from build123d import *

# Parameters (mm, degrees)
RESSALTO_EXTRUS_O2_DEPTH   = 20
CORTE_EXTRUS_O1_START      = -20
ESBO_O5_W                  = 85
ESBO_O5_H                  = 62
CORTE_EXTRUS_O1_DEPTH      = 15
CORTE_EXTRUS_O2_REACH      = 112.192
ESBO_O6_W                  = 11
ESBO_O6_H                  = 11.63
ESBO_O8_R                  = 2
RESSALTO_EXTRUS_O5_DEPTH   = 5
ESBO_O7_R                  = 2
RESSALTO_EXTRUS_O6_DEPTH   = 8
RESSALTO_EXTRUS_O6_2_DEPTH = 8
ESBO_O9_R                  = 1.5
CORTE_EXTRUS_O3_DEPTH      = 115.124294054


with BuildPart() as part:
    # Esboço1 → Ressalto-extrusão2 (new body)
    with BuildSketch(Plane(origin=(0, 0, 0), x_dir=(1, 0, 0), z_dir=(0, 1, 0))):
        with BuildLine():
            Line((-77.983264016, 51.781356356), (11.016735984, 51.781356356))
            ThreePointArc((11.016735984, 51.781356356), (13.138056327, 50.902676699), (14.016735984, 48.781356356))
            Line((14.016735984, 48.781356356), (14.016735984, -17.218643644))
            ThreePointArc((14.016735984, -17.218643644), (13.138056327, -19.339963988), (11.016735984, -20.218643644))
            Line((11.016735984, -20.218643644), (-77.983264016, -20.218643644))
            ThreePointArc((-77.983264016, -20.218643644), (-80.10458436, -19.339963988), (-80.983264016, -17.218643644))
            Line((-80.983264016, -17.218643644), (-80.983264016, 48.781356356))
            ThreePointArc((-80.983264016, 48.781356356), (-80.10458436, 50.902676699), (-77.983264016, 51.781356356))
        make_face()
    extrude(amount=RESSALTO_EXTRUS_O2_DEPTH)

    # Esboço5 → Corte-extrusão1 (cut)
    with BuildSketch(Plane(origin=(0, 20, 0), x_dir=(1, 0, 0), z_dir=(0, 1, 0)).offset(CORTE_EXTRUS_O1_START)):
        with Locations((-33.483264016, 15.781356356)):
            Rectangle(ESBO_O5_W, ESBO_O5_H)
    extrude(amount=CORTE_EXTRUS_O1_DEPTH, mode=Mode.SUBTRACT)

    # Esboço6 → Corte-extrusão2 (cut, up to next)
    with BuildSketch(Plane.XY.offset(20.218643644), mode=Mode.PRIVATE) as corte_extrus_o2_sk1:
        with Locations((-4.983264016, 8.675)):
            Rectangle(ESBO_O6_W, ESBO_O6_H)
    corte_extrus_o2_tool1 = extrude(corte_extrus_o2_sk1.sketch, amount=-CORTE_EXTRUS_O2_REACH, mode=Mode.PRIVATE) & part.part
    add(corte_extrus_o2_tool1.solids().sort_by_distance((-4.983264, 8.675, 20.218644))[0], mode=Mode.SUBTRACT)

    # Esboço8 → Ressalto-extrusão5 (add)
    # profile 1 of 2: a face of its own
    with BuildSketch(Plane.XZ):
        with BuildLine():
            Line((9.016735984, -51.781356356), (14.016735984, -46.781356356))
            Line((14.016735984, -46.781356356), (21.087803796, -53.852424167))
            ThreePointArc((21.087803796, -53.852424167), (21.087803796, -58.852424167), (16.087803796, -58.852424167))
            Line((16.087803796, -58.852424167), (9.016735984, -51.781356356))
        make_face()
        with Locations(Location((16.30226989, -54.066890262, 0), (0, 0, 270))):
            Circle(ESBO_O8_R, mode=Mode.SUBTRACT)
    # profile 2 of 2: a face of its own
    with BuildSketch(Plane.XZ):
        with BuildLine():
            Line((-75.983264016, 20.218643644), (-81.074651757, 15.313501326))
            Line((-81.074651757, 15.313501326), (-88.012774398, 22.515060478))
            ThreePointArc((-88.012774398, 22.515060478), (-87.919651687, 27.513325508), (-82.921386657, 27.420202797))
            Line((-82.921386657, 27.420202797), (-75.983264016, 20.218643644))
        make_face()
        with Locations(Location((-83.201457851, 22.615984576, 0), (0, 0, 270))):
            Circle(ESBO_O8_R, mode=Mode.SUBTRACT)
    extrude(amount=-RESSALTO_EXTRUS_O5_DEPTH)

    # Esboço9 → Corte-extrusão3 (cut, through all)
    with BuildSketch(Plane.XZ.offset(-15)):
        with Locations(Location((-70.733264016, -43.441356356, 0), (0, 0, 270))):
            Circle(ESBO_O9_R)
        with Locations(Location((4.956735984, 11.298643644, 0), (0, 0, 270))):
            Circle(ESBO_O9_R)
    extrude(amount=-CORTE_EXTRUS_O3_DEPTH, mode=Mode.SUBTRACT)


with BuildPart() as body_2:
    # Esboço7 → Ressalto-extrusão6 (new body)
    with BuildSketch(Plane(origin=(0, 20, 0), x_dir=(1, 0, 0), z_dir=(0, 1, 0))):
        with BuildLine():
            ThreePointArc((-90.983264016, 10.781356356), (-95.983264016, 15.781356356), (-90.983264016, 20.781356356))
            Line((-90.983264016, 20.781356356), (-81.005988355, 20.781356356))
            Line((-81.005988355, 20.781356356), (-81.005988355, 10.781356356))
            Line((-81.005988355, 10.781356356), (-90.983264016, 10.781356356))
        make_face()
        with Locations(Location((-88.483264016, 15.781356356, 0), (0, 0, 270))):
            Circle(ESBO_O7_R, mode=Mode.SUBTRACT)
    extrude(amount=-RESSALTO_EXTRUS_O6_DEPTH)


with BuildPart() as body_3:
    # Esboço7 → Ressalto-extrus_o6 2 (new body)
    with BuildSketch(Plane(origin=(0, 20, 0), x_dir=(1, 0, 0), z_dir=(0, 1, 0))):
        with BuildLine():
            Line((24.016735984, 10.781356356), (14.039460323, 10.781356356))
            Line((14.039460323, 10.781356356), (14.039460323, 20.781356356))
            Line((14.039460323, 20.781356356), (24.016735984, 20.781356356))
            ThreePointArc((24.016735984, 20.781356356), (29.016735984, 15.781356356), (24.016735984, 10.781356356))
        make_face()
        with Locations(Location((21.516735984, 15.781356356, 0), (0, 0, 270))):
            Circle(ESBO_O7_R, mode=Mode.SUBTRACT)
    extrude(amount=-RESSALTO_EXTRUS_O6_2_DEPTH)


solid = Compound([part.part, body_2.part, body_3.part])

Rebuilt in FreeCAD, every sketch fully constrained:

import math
import FreeCAD as App
import Part
import Sketcher
from FreeCAD import Vector
Q = App.Units.Quantity


def add_polygon(sketch, points):
    """Adds a closed chain of lines whose ends are joined by coincident constraints."""
    first, n = sketch.GeometryCount, len(points)
    for a, b in zip(points, points[1:] + points[:1]):
        sketch.addGeometry(Part.LineSegment(App.Vector(*a, 0), App.Vector(*b, 0)), False)
    for i in range(n):
        sketch.addConstraint(Sketcher.Constraint("Coincident", first + i, 2, first + (i + 1) % n, 1))

doc = App.newDocument("Part")
body = doc.addObject("PartDesign::Body", "Body")

# Sketch on XZ plane
sketch1 = body.newObject("Sketcher::SketchObject", "Sketch")
sketch1.AttachmentSupport = (doc.getObject("XZ_Plane"), [""])
sketch1.MapMode = "FlatFace"
sketch1.addGeometry(Part.LineSegment(Vector(11, -51.8, 0), Vector(-78, -51.8, 0)), False)
sketch1.addGeometry(Part.ArcOfCircle(Part.Circle(Vector(-78, -48.8, 0), Vector(0, 0, 1), 3), math.radians(180), math.radians(270)), False)
sketch1.addGeometry(Part.LineSegment(Vector(-81, -48.8, 0), Vector(-81, 17.2, 0)), False)
sketch1.addGeometry(Part.ArcOfCircle(Part.Circle(Vector(-78, 17.2, 0), Vector(0, 0, 1), 3), math.radians(90), math.radians(180)), False)
sketch1.addGeometry(Part.LineSegment(Vector(-78, 20.2, 0), Vector(11, 20.2, 0)), False)
sketch1.addGeometry(Part.ArcOfCircle(Part.Circle(Vector(11, 17.2, 0), Vector(0, 0, 1), 3), math.radians(0), math.radians(90)), False)
sketch1.addGeometry(Part.LineSegment(Vector(14, 17.2, 0), Vector(14, -48.8, 0)), False)
sketch1.addGeometry(Part.ArcOfCircle(Part.Circle(Vector(11, -48.8, 0), Vector(0, 0, 1), 3), math.radians(-90), math.radians(0)), False)
sketch1.addConstraint(Sketcher.Constraint("Tangent", 0, 2, 1, 2))
sketch1.addConstraint(Sketcher.Constraint("Tangent", 1, 1, 2, 1))
sketch1.addConstraint(Sketcher.Constraint("Tangent", 2, 2, 3, 2))
sketch1.addConstraint(Sketcher.Constraint("Tangent", 3, 1, 4, 1))
sketch1.addConstraint(Sketcher.Constraint("Tangent", 4, 2, 5, 2))
sketch1.addConstraint(Sketcher.Constraint("Tangent", 5, 1, 6, 1))
sketch1.addConstraint(Sketcher.Constraint("Tangent", 6, 2, 7, 2))
sketch1.addConstraint(Sketcher.Constraint("Tangent", 7, 1, 0, 1))
sketch1.addConstraint(Sketcher.Constraint("Horizontal", 0))
sketch1.addConstraint(Sketcher.Constraint("Vertical", 2))
sketch1.addConstraint(Sketcher.Constraint("Horizontal", 4))
sketch1.addConstraint(Sketcher.Constraint("Vertical", 6))
sketch1.addConstraint(Sketcher.Constraint("Equal", 1, 3))
sketch1.addConstraint(Sketcher.Constraint("Equal", 3, 5))
sketch1.addConstraint(Sketcher.Constraint("Equal", 5, 7))
sketch1.addConstraint(Sketcher.Constraint("Radius", 1, 3.0))
sketch1.addConstraint(Sketcher.Constraint("DistanceX", 0, 2, 0, 1, 89.0))
sketch1.addConstraint(Sketcher.Constraint("DistanceY", 2, 1, 2, 2, 66.0))
sketch1.addConstraint(Sketcher.Constraint("DistanceX", 1, 3, -1, 1, 77.983264))
sketch1.addConstraint(Sketcher.Constraint("DistanceY", 1, 3, -1, 1, 48.781356))
pad1 = body.newObject("PartDesign::Pad", "Pad")
pad1.Profile = sketch1
pad1.Length = 20
pad1.Reversed = True

# Sketch on XZ plane
sketch2 = body.newObject("Sketcher::SketchObject", "Sketch001")
sketch2.AttachmentSupport = (doc.getObject("XZ_Plane"), [""])
sketch2.MapMode = "FlatFace"
add_polygon(sketch2, [(-76, -47), (-76, 15), (9, 15), (9, -47)])  # lines 0-3
sketch2.addConstraint(Sketcher.Constraint("Vertical", 0))
sketch2.addConstraint(Sketcher.Constraint("Horizontal", 1))
sketch2.addConstraint(Sketcher.Constraint("Vertical", 2))
sketch2.addConstraint(Sketcher.Constraint("Horizontal", 3))
sketch2.addConstraint(Sketcher.Constraint("DistanceX", 1, 1, 1, 2, 85.0))
sketch2.addConstraint(Sketcher.Constraint("DistanceY", 0, 1, 0, 2, 62.0))
sketch2.addConstraint(Sketcher.Constraint("DistanceX", 0, 2, -1, 1, 75.983264))
sketch2.addConstraint(Sketcher.Constraint("DistanceY", -1, 1, 0, 2, 15.218644))
pocket1 = body.newObject("PartDesign::Pocket", "Pocket")
pocket1.Profile = sketch2
pocket1.Length = 15

# Sketch on XY plane
sketch3 = body.newObject("Sketcher::SketchObject", "Sketch002")
sketch3.AttachmentSupport = (doc.getObject("XY_Plane"), [""])
sketch3.MapMode = "FlatFace"
sketch3.AttachmentOffset = App.Placement(Vector(0, 0, 20.218644), App.Rotation())
add_polygon(sketch3, [(-10, 14), (-10, 3), (1, 3), (1, 14)])  # lines 0-3
sketch3.addConstraint(Sketcher.Constraint("Vertical", 0))
sketch3.addConstraint(Sketcher.Constraint("Horizontal", 1))
sketch3.addConstraint(Sketcher.Constraint("Vertical", 2))
sketch3.addConstraint(Sketcher.Constraint("Horizontal", 3))
sketch3.addConstraint(Sketcher.Constraint("DistanceX", 1, 1, 1, 2, 11.0))
sketch3.addConstraint(Sketcher.Constraint("DistanceY", 0, 2, 0, 1, 11.63))
sketch3.addConstraint(Sketcher.Constraint("DistanceY", -1, 1, 0, 2, 2.86))
sketch3.addConstraint(Sketcher.Constraint("DistanceX", 0, 2, -1, 1, 10.483264))
pocket2 = body.newObject("PartDesign::Pocket", "Pocket001")
pocket2.Profile = sketch3
pocket2.Type = "UpToFirst"

# Sketch on XZ plane
sketch4 = body.newObject("Sketcher::SketchObject", "Sketch003")
sketch4.AttachmentSupport = (doc.getObject("XZ_Plane"), [""])
sketch4.MapMode = "FlatFace"
sketch4.addGeometry(Part.LineSegment(Vector(14, -46.8, 0), Vector(9, -51.8, 0)), False)
sketch4.addGeometry(Part.LineSegment(Vector(9, -51.8, 0), Vector(16.1, -58.9, 0)), False)
sketch4.addGeometry(Part.ArcOfCircle(Part.Circle(Vector(18.6, -56.4, 0), Vector(0, 0, 1), 3.5), math.radians(-135), math.radians(45)), False)
sketch4.addGeometry(Part.LineSegment(Vector(21.1, -53.9, 0), Vector(14, -46.8, 0)), False)
sketch4.addGeometry(Part.Circle(Vector(16.3, -54.1, 0), Vector(0, 0, 1), 2), False)
sketch4.addGeometry(Part.LineSegment(Vector(-81.1, 15.3, 0), Vector(-76, 20.2, 0)), False)
sketch4.addGeometry(Part.LineSegment(Vector(-76, 20.2, 0), Vector(-82.9, 27.4, 0)), False)
sketch4.addGeometry(Part.ArcOfCircle(Part.Circle(Vector(-85.5, 25, 0), Vector(0, 0, 1), 3.5), math.radians(44), math.radians(224)), False)
sketch4.addGeometry(Part.LineSegment(Vector(-88, 22.5, 0), Vector(-81.1, 15.3, 0)), False)
sketch4.addGeometry(Part.Circle(Vector(-83.2, 22.6, 0), Vector(0, 0, 1), 2), False)
sketch4.addConstraint(Sketcher.Constraint("Coincident", 0, 2, 1, 1))
sketch4.addConstraint(Sketcher.Constraint("Tangent", 1, 2, 2, 1))
sketch4.addConstraint(Sketcher.Constraint("Tangent", 2, 2, 3, 1))
sketch4.addConstraint(Sketcher.Constraint("Coincident", 3, 2, 0, 1))
sketch4.addConstraint(Sketcher.Constraint("Coincident", 5, 2, 6, 1))
sketch4.addConstraint(Sketcher.Constraint("Tangent", 6, 2, 7, 1))
sketch4.addConstraint(Sketcher.Constraint("Tangent", 7, 2, 8, 1))
sketch4.addConstraint(Sketcher.Constraint("Coincident", 8, 2, 5, 1))
sketch4.addConstraint(Sketcher.Constraint("Equal", 4, 9))
sketch4.addConstraint(Sketcher.Constraint("Perpendicular", 0, 1))
sketch4.addConstraint(Sketcher.Constraint("Parallel", 1, 3))
sketch4.addConstraint(Sketcher.Constraint("Perpendicular", 5, 6))
sketch4.addConstraint(Sketcher.Constraint("Parallel", 6, 8))
sketch4.addConstraint(Sketcher.Constraint("Equal", 3, 6))
sketch4.addConstraint(Sketcher.Constraint("Diameter", 4, 4.0))
sketch4.addConstraint(Sketcher.Constraint("Angle", 0, Q("-135 deg")))
sketch4.addConstraint(Sketcher.Constraint("Distance", 1, 10.0))
sketch4.addConstraint(Sketcher.Constraint("DistanceX", 1, 2, 2, 2, 5.0))
sketch4.addConstraint(Sketcher.Constraint("DistanceX", 5, 2, 0, 2, 85.0))
sketch4.addConstraint(Sketcher.Constraint("DistanceY", 0, 2, 5, 2, 72.0))
sketch4.addConstraint(Sketcher.Constraint("Radius", 7, 3.53492))
sketch4.addConstraint(Sketcher.Constraint("DistanceY", -1, 1, 8, 2, 15.313501))
sketch4.addConstraint(Sketcher.Constraint("DistanceY", 8, 2, 6, 2, 12.106701))
sketch4.addConstraint(Sketcher.Constraint("DistanceX", -1, 1, 4, 3, 16.30227))
sketch4.addConstraint(Sketcher.Constraint("DistanceY", 4, 3, -1, 1, 54.06689))
sketch4.addConstraint(Sketcher.Constraint("DistanceX", 7, 3, -1, 1, 85.467081))
sketch4.addConstraint(Sketcher.Constraint("DistanceX", 9, 3, 2, 3, 101.789262))
sketch4.addConstraint(Sketcher.Constraint("DistanceY", 2, 3, 9, 3, 78.968409))
pad2 = body.newObject("PartDesign::Pad", "Pad001")
pad2.Profile = sketch4
pad2.Length = 5
pad2.Reversed = True

# Sketch on XZ plane
sketch5 = body.newObject("Sketcher::SketchObject", "Sketch004")
sketch5.AttachmentSupport = (doc.getObject("XZ_Plane"), [""])
sketch5.MapMode = "FlatFace"
sketch5.AttachmentOffset = App.Placement(Vector(0, 0, -15), App.Rotation())
sketch5.addGeometry(Part.Circle(Vector(-70.7, -43.4, 0), Vector(0, 0, 1), 1.5), False)
sketch5.addGeometry(Part.Circle(Vector(5, 11.3, 0), Vector(0, 0, 1), 1.5), False)
sketch5.addConstraint(Sketcher.Constraint("Equal", 0, 1))
sketch5.addConstraint(Sketcher.Constraint("Diameter", 0, 3.0))
sketch5.addConstraint(Sketcher.Constraint("DistanceX", 0, 3, 1, 3, 75.69))
sketch5.addConstraint(Sketcher.Constraint("DistanceY", 0, 3, 1, 3, 54.74))
sketch5.addConstraint(Sketcher.Constraint("DistanceX", 0, 3, -1, 1, 70.733264))
sketch5.addConstraint(Sketcher.Constraint("DistanceY", 0, 3, -1, 1, 43.441356))
pocket3 = body.newObject("PartDesign::Pocket", "Pocket002")
pocket3.Profile = sketch5
pocket3.Type = "ThroughAll"
body2 = doc.addObject("PartDesign::Body", "Body001")

# Sketch on XZ plane
sketch6 = body2.newObject("Sketcher::SketchObject", "Sketch005")
sketch6.AttachmentSupport = (doc.getObject("XZ_Plane001"), [""])
sketch6.MapMode = "FlatFace"
sketch6.AttachmentOffset = App.Placement(Vector(0, 0, -20), App.Rotation())
sketch6.addGeometry(Part.ArcOfCircle(Part.Circle(Vector(-91, -15.8, 0), Vector(0, 0, 1), 5), math.radians(90), math.radians(270)), False)
sketch6.addGeometry(Part.LineSegment(Vector(-91, -10.8, 0), Vector(-81, -10.8, 0)), False)
sketch6.addGeometry(Part.LineSegment(Vector(-81, -10.8, 0), Vector(-81, -20.8, 0)), False)
sketch6.addGeometry(Part.LineSegment(Vector(-81, -20.8, 0), Vector(-91, -20.8, 0)), False)
sketch6.addGeometry(Part.Circle(Vector(-88.5, -15.8, 0), Vector(0, 0, 1), 2), False)
sketch6.addConstraint(Sketcher.Constraint("Tangent", 0, 1, 1, 1))
sketch6.addConstraint(Sketcher.Constraint("Coincident", 1, 2, 2, 1))
sketch6.addConstraint(Sketcher.Constraint("Coincident", 2, 2, 3, 1))
sketch6.addConstraint(Sketcher.Constraint("Tangent", 3, 2, 0, 2))
sketch6.addConstraint(Sketcher.Constraint("Horizontal", 1))
sketch6.addConstraint(Sketcher.Constraint("Vertical", 2))
sketch6.addConstraint(Sketcher.Constraint("Horizontal", 3))
sketch6.addConstraint(Sketcher.Constraint("Horizontal", 0, 3, 4, 3))
sketch6.addConstraint(Sketcher.Constraint("Diameter", 4, 4.0))
sketch6.addConstraint(Sketcher.Constraint("Radius", 0, 5.0))
sketch6.addConstraint(Sketcher.Constraint("DistanceX", 0, 3, 4, 3, 2.5))
sketch6.addConstraint(Sketcher.Constraint("DistanceX", 1, 1, 1, 2, 9.977276))
sketch6.addConstraint(Sketcher.Constraint("DistanceX", 1, 2, -1, 1, 81.005988))
sketch6.addConstraint(Sketcher.Constraint("DistanceY", 0, 3, -1, 1, 15.781356))
pad3 = body2.newObject("PartDesign::Pad", "Pad002")
pad3.Profile = sketch6
pad3.Length = 8
body3 = doc.addObject("PartDesign::Body", "Body002")

# Sketch on XZ plane
sketch7 = body3.newObject("Sketcher::SketchObject", "Sketch006")
sketch7.AttachmentSupport = (doc.getObject("XZ_Plane002"), [""])
sketch7.MapMode = "FlatFace"
sketch7.AttachmentOffset = App.Placement(Vector(0, 0, -20), App.Rotation())
sketch7.addGeometry(Part.LineSegment(Vector(14, -10.8, 0), Vector(24, -10.8, 0)), False)
sketch7.addGeometry(Part.ArcOfCircle(Part.Circle(Vector(24, -15.8, 0), Vector(0, 0, 1), 5), math.radians(-90), math.radians(90)), False)
sketch7.addGeometry(Part.LineSegment(Vector(24, -20.8, 0), Vector(14, -20.8, 0)), False)
sketch7.addGeometry(Part.LineSegment(Vector(14, -20.8, 0), Vector(14, -10.8, 0)), False)
sketch7.addGeometry(Part.Circle(Vector(21.5, -15.8, 0), Vector(0, 0, 1), 2), False)
sketch7.addConstraint(Sketcher.Constraint("Tangent", 0, 2, 1, 2))
sketch7.addConstraint(Sketcher.Constraint("Tangent", 1, 1, 2, 1))
sketch7.addConstraint(Sketcher.Constraint("Coincident", 2, 2, 3, 1))
sketch7.addConstraint(Sketcher.Constraint("Coincident", 3, 2, 0, 1))
sketch7.addConstraint(Sketcher.Constraint("Horizontal", 0))
sketch7.addConstraint(Sketcher.Constraint("Horizontal", 2))
sketch7.addConstraint(Sketcher.Constraint("Vertical", 3))
sketch7.addConstraint(Sketcher.Constraint("Horizontal", 1, 3, 4, 3))
sketch7.addConstraint(Sketcher.Constraint("Diameter", 4, 4.0))
sketch7.addConstraint(Sketcher.Constraint("Radius", 1, 5.0))
sketch7.addConstraint(Sketcher.Constraint("DistanceX", 4, 3, 1, 3, 2.5))
sketch7.addConstraint(Sketcher.Constraint("DistanceX", 0, 1, 0, 2, 9.977276))
sketch7.addConstraint(Sketcher.Constraint("DistanceX", -1, 1, 2, 2, 14.03946))
sketch7.addConstraint(Sketcher.Constraint("DistanceY", 1, 3, -1, 1, 15.781356))
pad4 = body3.newObject("PartDesign::Pad", "Pad003")
pad4.Profile = sketch7
pad4.Length = 8

doc.recompute()
